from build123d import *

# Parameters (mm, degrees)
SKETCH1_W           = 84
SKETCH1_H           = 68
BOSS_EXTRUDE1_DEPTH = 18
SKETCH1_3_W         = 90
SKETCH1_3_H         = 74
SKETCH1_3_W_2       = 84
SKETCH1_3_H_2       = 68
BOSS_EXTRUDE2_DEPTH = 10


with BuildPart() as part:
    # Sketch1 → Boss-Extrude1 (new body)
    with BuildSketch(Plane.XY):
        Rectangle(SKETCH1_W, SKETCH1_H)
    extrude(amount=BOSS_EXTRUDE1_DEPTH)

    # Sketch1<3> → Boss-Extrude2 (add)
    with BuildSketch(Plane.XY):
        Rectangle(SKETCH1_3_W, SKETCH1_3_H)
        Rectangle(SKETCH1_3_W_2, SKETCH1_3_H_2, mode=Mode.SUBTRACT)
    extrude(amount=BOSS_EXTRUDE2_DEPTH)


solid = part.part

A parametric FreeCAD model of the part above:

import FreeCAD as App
import Part
import Sketcher
from FreeCAD import Vector
Q = App.Units.Quantity


def add_polygon(sketch, points):
    """Adds a closed chain of lines whose ends are joined by coincident constraints."""
    first, n = sketch.GeometryCount, len(points)
    for a, b in zip(points, points[1:] + points[:1]):
        sketch.addGeometry(Part.LineSegment(App.Vector(*a, 0), App.Vector(*b, 0)), False)
    for i in range(n):
        sketch.addConstraint(Sketcher.Constraint("Coincident", first + i, 2, first + (i + 1) % n, 1))

doc = App.newDocument("Part")
body = doc.addObject("PartDesign::Body", "Body")

# Sketch on XY plane
sketch1 = body.newObject("Sketcher::SketchObject", "Sketch")
sketch1.AttachmentSupport = (doc.getObject("XY_Plane"), [""])
sketch1.MapMode = "FlatFace"
add_polygon(sketch1, [(-42, 34), (-42, -34), (42, -34), (42, 34)])  # lines 0-3
sketch1.addConstraint([
    Sketcher.Constraint("Vertical", 0),
    Sketcher.Constraint("Horizontal", 1),
    Sketcher.Constraint("Vertical", 2),
    Sketcher.Constraint("Horizontal", 3),
    Sketcher.Constraint("Symmetric", 0, 2, 2, 2, -1, 1),
    Sketcher.Constraint("DistanceX", 1, 1, 1, 2, Q("84 mm")),
    Sketcher.Constraint("DistanceY", 0, 2, 0, 1, Q("68 mm")),
])
pad1 = body.newObject("PartDesign::Pad", "Pad")
pad1.Profile = sketch1
pad1.Length = 18

# Sketch on XY plane
sketch2 = body.newObject("Sketcher::SketchObject", "Sketch001")
sketch2.AttachmentSupport = (doc.getObject("XY_Plane"), [""])
sketch2.MapMode = "FlatFace"
add_polygon(sketch2, [(-45, 37), (-45, -37), (45, -37), (45, 37)])  # lines 0-3
add_polygon(sketch2, [(42, -34), (-42, -34), (-42, 34), (42, 34)])  # lines 4-7
sketch2.addConstraint([
    Sketcher.Constraint("Vertical", 0),
    Sketcher.Constraint("Horizontal", 1),
    Sketcher.Constraint("Vertical", 2),
    Sketcher.Constraint("Horizontal", 3),
    Sketcher.Constraint("Horizontal", 4),
    Sketcher.Constraint("Vertical", 5),
    Sketcher.Constraint("Horizontal", 6),
    Sketcher.Constraint("Vertical", 7),
    Sketcher.Constraint("Symmetric", 0, 2, 2, 2, -1, 1),
    Sketcher.Constraint("Symmetric", 4, 2, 6, 2, -1, 1),
    Sketcher.Constraint("DistanceX", 1, 1, 1, 2, Q("90 mm")),
    Sketcher.Constraint("DistanceX", 4, 2, 4, 1, Q("84 mm")),
    Sketcher.Constraint("DistanceY", 0, 2, 0, 1, Q("74 mm")),
    Sketcher.Constraint("DistanceY", 5, 1, 5, 2, Q("68 mm")),
])
pad2 = body.newObject("PartDesign::Pad", "Pad001")
pad2.Profile = sketch2
pad2.Length = 10

doc.recompute()
